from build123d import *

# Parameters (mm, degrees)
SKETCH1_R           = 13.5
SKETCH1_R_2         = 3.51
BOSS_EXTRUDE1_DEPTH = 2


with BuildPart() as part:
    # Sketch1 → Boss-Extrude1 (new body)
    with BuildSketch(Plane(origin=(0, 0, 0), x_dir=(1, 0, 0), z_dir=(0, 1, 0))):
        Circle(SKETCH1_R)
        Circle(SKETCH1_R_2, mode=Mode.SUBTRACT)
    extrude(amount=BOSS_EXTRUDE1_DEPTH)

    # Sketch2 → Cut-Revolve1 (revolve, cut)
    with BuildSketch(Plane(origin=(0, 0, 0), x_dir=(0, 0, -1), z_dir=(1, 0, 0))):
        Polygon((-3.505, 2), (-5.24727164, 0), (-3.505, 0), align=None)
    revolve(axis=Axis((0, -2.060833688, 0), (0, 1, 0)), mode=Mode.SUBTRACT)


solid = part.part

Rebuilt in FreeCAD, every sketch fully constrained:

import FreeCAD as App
import Part
import Sketcher
from FreeCAD import Vector
Q = App.Units.Quantity

doc = App.newDocument("Part")
body = doc.addObject("PartDesign::Body", "Body")

sketch1 = body.newObject("Sketcher::SketchObject", "Sketch")
sketch1.AttachmentSupport = (doc.getObject("XZ_Plane"), [""])
sketch1.MapMode = "FlatFace"
sketch1.addGeometry([
    Part.Circle(Vector(0, 0, 0), Vector(0, 0, 1), 13.5),
    Part.Circle(Vector(0, 0, 0), Vector(0, 0, 1), 3.51),
], False)
sketch1.addConstraint([
    Sketcher.Constraint("Coincident", 0, 3, -1, 1),
    Sketcher.Constraint("Coincident", 1, 3, -1, 1),
    Sketcher.Constraint("Diameter", 0, Q("27 mm")),
    Sketcher.Constraint("Diameter", 1, Q("7.02 mm")),
])
pad1 = body.newObject("PartDesign::Pad", "Pad")
pad1.Profile = sketch1
pad1.Length = 2
pad1.Reversed = True

sketch2 = body.newObject("Sketcher::SketchObject", "Sketch001")
sketch2.AttachmentSupport = (doc.getObject("YZ_Plane"), [""])
sketch2.MapMode = "FlatFace"
sketch2.addGeometry([
    Part.LineSegment(Vector(2, 3.505, 0), Vector(0, 5.247272, 0)),
    Part.LineSegment(Vector(0, 5.247272, 0), Vector(0, 3.505, 0)),
    Part.LineSegment(Vector(0, 3.505, 0), Vector(2, 3.505, 0)),
], False)
sketch2.addConstraint([
    Sketcher.Constraint("Coincident", 0, 2, 1, 1),
    Sketcher.Constraint("Coincident", 1, 2, 2, 1),
    Sketcher.Constraint("Coincident", 2, 2, 0, 1),
    Sketcher.Constraint("Vertical", 1),
    Sketcher.Constraint("Horizontal", 2),
    Sketcher.Constraint("PointOnObject", 0, 2, -2),
    Sketcher.Constraint("DistanceX", 2, 1, 2, 2, Q("2 mm")),
    Sketcher.Constraint("DistanceY", -1, 1, 1, 2, Q("3.505 mm")),
    Sketcher.Constraint("DistanceY", 1, 2, 1, 1, Q("1.742272 mm")),
])
groove = body.newObject("PartDesign::Groove", "Groove")
groove.Profile = sketch2
groove.ReferenceAxis = (sketch2, ["H_Axis"])
groove.Angle = 360

doc.recompute()
